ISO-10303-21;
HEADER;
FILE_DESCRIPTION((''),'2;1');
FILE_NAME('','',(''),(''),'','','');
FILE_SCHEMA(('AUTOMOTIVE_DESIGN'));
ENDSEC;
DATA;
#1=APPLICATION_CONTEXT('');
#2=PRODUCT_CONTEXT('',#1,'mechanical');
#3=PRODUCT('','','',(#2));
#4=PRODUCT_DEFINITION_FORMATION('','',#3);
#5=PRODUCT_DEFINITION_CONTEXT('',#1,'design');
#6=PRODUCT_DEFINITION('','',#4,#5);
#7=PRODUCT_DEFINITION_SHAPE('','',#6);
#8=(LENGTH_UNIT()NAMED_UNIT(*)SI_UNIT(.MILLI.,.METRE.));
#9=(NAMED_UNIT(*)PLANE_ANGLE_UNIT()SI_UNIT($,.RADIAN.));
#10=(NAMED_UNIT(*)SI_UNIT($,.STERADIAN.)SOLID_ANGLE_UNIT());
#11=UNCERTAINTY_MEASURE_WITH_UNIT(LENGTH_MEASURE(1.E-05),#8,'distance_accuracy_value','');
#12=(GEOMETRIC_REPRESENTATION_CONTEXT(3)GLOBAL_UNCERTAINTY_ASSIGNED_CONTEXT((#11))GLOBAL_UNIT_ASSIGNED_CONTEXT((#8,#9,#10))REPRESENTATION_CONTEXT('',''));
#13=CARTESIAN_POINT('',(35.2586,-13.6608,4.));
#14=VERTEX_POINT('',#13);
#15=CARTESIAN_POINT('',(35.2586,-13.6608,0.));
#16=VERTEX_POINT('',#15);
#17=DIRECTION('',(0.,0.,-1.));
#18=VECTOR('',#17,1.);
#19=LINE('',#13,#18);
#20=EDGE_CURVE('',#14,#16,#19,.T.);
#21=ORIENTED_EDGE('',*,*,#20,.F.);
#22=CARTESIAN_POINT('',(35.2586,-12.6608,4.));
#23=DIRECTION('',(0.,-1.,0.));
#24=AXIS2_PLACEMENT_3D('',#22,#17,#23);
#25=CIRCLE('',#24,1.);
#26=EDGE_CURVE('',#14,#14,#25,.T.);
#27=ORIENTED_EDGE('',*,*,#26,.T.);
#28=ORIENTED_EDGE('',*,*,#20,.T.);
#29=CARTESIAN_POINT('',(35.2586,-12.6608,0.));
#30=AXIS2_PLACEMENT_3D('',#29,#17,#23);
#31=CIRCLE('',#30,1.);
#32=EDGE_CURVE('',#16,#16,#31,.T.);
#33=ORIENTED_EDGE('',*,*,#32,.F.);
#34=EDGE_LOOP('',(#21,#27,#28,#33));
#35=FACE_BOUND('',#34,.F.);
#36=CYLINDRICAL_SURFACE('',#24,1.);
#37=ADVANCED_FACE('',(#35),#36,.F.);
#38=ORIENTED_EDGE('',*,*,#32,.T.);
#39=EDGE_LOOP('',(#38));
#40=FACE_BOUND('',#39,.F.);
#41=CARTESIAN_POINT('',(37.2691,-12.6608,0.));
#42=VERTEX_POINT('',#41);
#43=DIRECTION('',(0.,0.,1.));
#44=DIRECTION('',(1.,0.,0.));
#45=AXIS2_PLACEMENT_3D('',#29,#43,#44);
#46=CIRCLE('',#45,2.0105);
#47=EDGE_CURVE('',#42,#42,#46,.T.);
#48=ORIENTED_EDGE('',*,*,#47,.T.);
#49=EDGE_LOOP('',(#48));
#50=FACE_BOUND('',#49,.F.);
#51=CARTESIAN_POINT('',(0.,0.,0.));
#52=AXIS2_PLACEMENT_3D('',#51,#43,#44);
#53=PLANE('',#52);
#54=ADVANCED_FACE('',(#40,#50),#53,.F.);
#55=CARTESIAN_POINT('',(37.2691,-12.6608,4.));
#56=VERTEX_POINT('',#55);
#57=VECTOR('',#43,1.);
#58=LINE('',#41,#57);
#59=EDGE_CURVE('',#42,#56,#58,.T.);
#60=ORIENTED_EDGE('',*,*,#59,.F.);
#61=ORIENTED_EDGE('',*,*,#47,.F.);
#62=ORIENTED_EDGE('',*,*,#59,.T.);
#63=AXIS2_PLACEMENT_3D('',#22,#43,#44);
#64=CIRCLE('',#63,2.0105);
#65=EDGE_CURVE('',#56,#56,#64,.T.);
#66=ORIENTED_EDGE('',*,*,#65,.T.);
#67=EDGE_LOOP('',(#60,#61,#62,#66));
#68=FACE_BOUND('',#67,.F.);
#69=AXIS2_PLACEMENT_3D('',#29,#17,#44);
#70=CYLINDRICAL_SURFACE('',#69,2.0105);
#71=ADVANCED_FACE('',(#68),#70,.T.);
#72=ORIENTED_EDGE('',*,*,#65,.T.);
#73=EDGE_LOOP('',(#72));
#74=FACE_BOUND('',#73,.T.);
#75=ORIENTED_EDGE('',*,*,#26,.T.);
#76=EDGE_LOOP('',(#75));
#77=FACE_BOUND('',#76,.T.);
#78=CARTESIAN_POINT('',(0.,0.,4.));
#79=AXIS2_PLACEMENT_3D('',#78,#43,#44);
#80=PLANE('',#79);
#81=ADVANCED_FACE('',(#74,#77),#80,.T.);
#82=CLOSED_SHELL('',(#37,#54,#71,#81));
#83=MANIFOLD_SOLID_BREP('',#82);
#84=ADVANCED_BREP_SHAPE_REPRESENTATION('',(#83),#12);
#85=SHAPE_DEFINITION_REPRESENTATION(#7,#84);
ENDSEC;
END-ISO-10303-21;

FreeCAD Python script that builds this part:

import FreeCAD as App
import Part
import Sketcher

V = App.Vector

doc = App.newDocument("Part")
body = doc.addObject("PartDesign::Body", "Body")

# Sketch on XY plane
sketch1 = body.newObject("Sketcher::SketchObject", "Sketch")
sketch1.AttachmentSupport = (doc.getObject("XY_Plane"), [""])
sketch1.MapMode = "FlatFace"
sketch1.addGeometry(Part.Circle(V(35.2586, -12.6608, 0), V(0, 0, 1), 2.0105), False)
sketch1.addConstraint([
    Sketcher.Constraint("Diameter", 0, 4.021),
    Sketcher.Constraint("DistanceX", -1, 1, 0, 3, 35.2586),
    Sketcher.Constraint("DistanceY", 0, 3, -1, 1, 12.6608),
])
pad1 = body.newObject("PartDesign::Pad", "Pad")
pad1.Profile = sketch1
pad1.Length = 4

# Sketch on XY plane
sketch2 = body.newObject("Sketcher::SketchObject", "Sketch001")
sketch2.AttachmentSupport = (doc.getObject("XY_Plane"), [""])
sketch2.MapMode = "FlatFace"
sketch2.AttachmentOffset = App.Placement(V(0, 0, 4), App.Rotation())
sketch2.addGeometry(Part.Circle(V(35.2586, -12.6608, 0), V(0, 0, 1), 1), False)
sketch2.addConstraint([
    Sketcher.Constraint("Diameter", 0, 2.0),
    Sketcher.Constraint("DistanceX", -1, 1, 0, 3, 35.2586),
    Sketcher.Constraint("DistanceY", 0, 3, -1, 1, 12.6608),
])
doc.recompute()
hole = body.newObject("PartDesign::Hole", "Hole")
hole.Profile = sketch2
hole.ThreadType = "None"
hole.Diameter = 2
hole.DepthType = "ThroughAll"

doc.recompute()
